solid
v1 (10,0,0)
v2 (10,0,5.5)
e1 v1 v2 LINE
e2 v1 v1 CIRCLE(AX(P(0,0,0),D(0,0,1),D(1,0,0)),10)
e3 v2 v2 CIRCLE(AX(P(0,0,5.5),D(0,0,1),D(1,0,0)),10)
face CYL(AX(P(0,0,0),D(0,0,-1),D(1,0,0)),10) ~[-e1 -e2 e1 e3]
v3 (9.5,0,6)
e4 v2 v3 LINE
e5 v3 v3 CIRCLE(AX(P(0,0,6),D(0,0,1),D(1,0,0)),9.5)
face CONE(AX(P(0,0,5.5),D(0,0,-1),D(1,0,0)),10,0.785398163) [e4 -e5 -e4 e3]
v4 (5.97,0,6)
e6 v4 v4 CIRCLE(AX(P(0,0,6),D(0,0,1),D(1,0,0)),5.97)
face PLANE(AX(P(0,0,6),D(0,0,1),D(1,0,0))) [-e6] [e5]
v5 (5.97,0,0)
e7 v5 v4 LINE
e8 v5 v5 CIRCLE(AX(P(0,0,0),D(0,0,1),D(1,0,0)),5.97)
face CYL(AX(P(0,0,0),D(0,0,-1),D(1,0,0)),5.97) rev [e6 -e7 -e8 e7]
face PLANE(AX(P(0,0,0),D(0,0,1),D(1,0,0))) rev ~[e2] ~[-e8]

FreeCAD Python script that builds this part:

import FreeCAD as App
import Part
import Sketcher


def edges_at(feature, points):
    """Names of the edges that pass closest to the given points."""
    edges = feature.Shape.Edges
    near = lambda p: min(range(len(edges)), key=lambda i: edges[i].distToShape(Part.Vertex(*p))[0])
    return sorted({f"Edge{near(p) + 1}" for p in points})

doc = App.newDocument("Part")
body = doc.addObject("PartDesign::Body", "Body")

sketch1 = doc.addObject("Sketcher::SketchObject", "Sketch")
body.addObject(sketch1)
sketch1.AttachmentSupport = (doc.XY_Plane, [""])
sketch1.MapMode = "FlatFace"
sketch1.addGeometry([
    Part.Circle(App.Vector(0, 0, 0), App.Vector(0, 0, 1), 10),
    Part.Circle(App.Vector(0, 0, 0), App.Vector(0, 0, 1), 5.97),
], False)
sketch1.addConstraint([
    Sketcher.Constraint("Coincident", 0, 3, -1, 1),
    Sketcher.Constraint("Coincident", 1, 3, -1, 1),
    Sketcher.Constraint("Diameter", 0, 20.0),
    Sketcher.Constraint("Diameter", 1, 11.94),
])
pad1 = doc.addObject("PartDesign::Pad", "Pad")
body.addObject(pad1)
pad1.Profile = sketch1
pad1.Length = 6
doc.recompute()

chamfer = doc.addObject("PartDesign::Chamfer", "Chamfer")
body.addObject(chamfer)
chamfer.Base = (pad1, edges_at(pad1, [(-10, 0, 6)]))
chamfer.Size = 0.5

doc.recompute()
